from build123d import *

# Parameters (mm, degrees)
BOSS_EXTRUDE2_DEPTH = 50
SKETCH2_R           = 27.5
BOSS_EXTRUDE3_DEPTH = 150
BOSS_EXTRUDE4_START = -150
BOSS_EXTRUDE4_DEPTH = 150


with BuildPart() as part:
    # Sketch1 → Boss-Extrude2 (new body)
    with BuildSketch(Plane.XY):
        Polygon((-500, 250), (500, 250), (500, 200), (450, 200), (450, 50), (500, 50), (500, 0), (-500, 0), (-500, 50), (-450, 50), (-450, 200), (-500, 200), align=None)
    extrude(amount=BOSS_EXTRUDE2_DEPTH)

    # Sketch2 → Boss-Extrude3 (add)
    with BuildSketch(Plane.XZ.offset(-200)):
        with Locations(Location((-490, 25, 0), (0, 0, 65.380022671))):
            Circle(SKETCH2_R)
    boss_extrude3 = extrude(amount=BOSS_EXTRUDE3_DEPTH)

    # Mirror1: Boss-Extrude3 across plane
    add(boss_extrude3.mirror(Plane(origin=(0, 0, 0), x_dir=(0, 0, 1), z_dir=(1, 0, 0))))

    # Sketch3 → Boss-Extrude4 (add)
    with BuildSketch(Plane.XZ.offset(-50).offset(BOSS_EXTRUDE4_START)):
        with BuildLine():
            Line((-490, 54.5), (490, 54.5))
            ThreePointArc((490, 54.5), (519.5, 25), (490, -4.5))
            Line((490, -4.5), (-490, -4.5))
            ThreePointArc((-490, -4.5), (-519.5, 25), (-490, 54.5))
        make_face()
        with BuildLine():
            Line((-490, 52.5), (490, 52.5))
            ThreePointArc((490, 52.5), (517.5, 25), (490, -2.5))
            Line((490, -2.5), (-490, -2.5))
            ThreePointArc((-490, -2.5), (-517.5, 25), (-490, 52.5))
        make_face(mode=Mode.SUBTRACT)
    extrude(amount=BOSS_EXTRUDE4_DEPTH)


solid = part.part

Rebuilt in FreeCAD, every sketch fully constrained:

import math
import FreeCAD as App
import Part
import Sketcher
from FreeCAD import Vector
Q = App.Units.Quantity

doc = App.newDocument("Part")
body = doc.addObject("PartDesign::Body", "Body")

# Sketch on XY plane
sketch1 = doc.addObject("Sketcher::SketchObject", "Sketch")
body.addObject(sketch1)
sketch1.AttachmentSupport = (doc.XY_Plane, [""])
sketch1.MapMode = "FlatFace"
sketch1.addGeometry([
    Part.LineSegment(Vector(500, 250, 0), Vector(-500, 250, 0)),  # 0
    Part.LineSegment(Vector(-500, 250, 0), Vector(-500, 200, 0)),  # 1
    Part.LineSegment(Vector(-500, 200, 0), Vector(-450, 200, 0)),  # 2
    Part.LineSegment(Vector(-450, 200, 0), Vector(-450, 50, 0)),  # 3
    Part.LineSegment(Vector(-450, 50, 0), Vector(-500, 50, 0)),  # 4
    Part.LineSegment(Vector(-500, 50, 0), Vector(-500, 0, 0)),  # 5
    Part.LineSegment(Vector(-500, 0, 0), Vector(500, 0, 0)),  # 6
    Part.LineSegment(Vector(500, 0, 0), Vector(500, 50, 0)),  # 7
    Part.LineSegment(Vector(500, 50, 0), Vector(450, 50, 0)),  # 8
    Part.LineSegment(Vector(450, 50, 0), Vector(450, 200, 0)),  # 9
    Part.LineSegment(Vector(450, 200, 0), Vector(500, 200, 0)),  # 10
    Part.LineSegment(Vector(500, 200, 0), Vector(500, 250, 0)),  # 11
], False)
sketch1.addConstraint([
    Sketcher.Constraint("Coincident", 0, 2, 1, 1),
    Sketcher.Constraint("Coincident", 1, 2, 2, 1),
    Sketcher.Constraint("Coincident", 2, 2, 3, 1),
    Sketcher.Constraint("Coincident", 3, 2, 4, 1),
    Sketcher.Constraint("Coincident", 4, 2, 5, 1),
    Sketcher.Constraint("Coincident", 5, 2, 6, 1),
    Sketcher.Constraint("Coincident", 6, 2, 7, 1),
    Sketcher.Constraint("Coincident", 7, 2, 8, 1),
    Sketcher.Constraint("Coincident", 8, 2, 9, 1),
    Sketcher.Constraint("Coincident", 9, 2, 10, 1),
    Sketcher.Constraint("Coincident", 10, 2, 11, 1),
    Sketcher.Constraint("Coincident", 11, 2, 0, 1),
    Sketcher.Constraint("Horizontal", 0),
    Sketcher.Constraint("Vertical", 1),
    Sketcher.Constraint("Horizontal", 2),
    Sketcher.Constraint("Vertical", 3),
    Sketcher.Constraint("Horizontal", 4),
    Sketcher.Constraint("Vertical", 5),
    Sketcher.Constraint("Horizontal", 6),
    Sketcher.Constraint("Vertical", 7),
    Sketcher.Constraint("Horizontal", 8),
    Sketcher.Constraint("Vertical", 9),
    Sketcher.Constraint("Horizontal", 10),
    Sketcher.Constraint("Vertical", 11),
    Sketcher.Constraint("Symmetric", 5, 2, 6, 2, -1, 1),
    Sketcher.Constraint("Symmetric", 3, 2, 8, 2, -2),
    Sketcher.Constraint("Symmetric", 1, 2, 10, 2, -2),
    Sketcher.Constraint("Vertical", 1, 2, 4, 2),
    Sketcher.Constraint("Equal", 10, 1),
    Sketcher.Constraint("Equal", 1, 5),
    Sketcher.Constraint("DistanceX", 0, 2, 0, 1, Q("1000 mm")),
    Sketcher.Constraint("DistanceX", 2, 1, 2, 2, Q("50 mm")),
    Sketcher.Constraint("DistanceY", 3, 2, 3, 1, Q("150 mm")),
])
pad1 = doc.addObject("PartDesign::Pad", "Pad")
body.addObject(pad1)
pad1.Profile = sketch1
pad1.Length = 50

# Sketch on XZ plane
sketch2 = doc.addObject("Sketcher::SketchObject", "Sketch001")
body.addObject(sketch2)
sketch2.AttachmentSupport = (doc.XZ_Plane, [""])
sketch2.MapMode = "FlatFace"
sketch2.AttachmentOffset = App.Placement(Vector(0, 0, -200), App.Rotation())
sketch2.addGeometry(Part.Circle(Vector(-490, 25, 0), Vector(0, 0, 1), 28), False)
sketch2.addConstraint([
    Sketcher.Constraint("Diameter", 0, Q("55 mm")),
    Sketcher.Constraint("DistanceX", 0, 3, -1, 1, Q("490 mm")),
    Sketcher.Constraint("DistanceY", -1, 1, 0, 3, Q("25 mm")),
])
pad2 = doc.addObject("PartDesign::Pad", "Pad001")
body.addObject(pad2)
pad2.Profile = sketch2
pad2.Length = 150
doc.recompute()

mirrored = doc.addObject("PartDesign::Mirrored", "Mirrored")
body.addObject(mirrored)
mirrored.Originals = [pad2]
mirrored.MirrorPlane = (doc.YZ_Plane, [""])
body.Tip = mirrored

# Sketch on XZ plane
sketch3 = doc.addObject("Sketcher::SketchObject", "Sketch002")
body.addObject(sketch3)
sketch3.AttachmentSupport = (doc.XZ_Plane, [""])
sketch3.MapMode = "FlatFace"
sketch3.AttachmentOffset = App.Placement(Vector(0, 0, -200), App.Rotation())
sketch3.addGeometry([
    Part.LineSegment(Vector(490, 54, 0), Vector(-490, 54, 0)),  # 0
    Part.ArcOfCircle(Part.Circle(Vector(-490, 25, 0), Vector(0, 0, 1), 30), math.radians(90), math.radians(270)),  # 1
    Part.LineSegment(Vector(-490, -4, 0), Vector(490, -4, 0)),  # 2
    Part.ArcOfCircle(Part.Circle(Vector(490, 25, 0), Vector(0, 0, 1), 30), math.radians(-90), math.radians(90)),  # 3
    Part.LineSegment(Vector(-490, 52, 0), Vector(490, 52, 0)),  # 4
    Part.ArcOfCircle(Part.Circle(Vector(490, 25, 0), Vector(0, 0, 1), 28), math.radians(-90), math.radians(90)),  # 5
    Part.LineSegment(Vector(490, -2, 0), Vector(-490, -2, 0)),  # 6
    Part.ArcOfCircle(Part.Circle(Vector(-490, 25, 0), Vector(0, 0, 1), 28), math.radians(90), math.radians(270)),  # 7
], False)
sketch3.addConstraint([
    Sketcher.Constraint("Tangent", 0, 2, 1, 1),
    Sketcher.Constraint("Tangent", 1, 2, 2, 1),
    Sketcher.Constraint("Tangent", 2, 2, 3, 1),
    Sketcher.Constraint("Tangent", 3, 2, 0, 1),
    Sketcher.Constraint("Tangent", 4, 2, 5, 2),
    Sketcher.Constraint("Tangent", 5, 1, 6, 1),
    Sketcher.Constraint("Tangent", 6, 2, 7, 2),
    Sketcher.Constraint("Tangent", 7, 1, 4, 1),
    Sketcher.Constraint("Horizontal", 0),
    Sketcher.Constraint("Horizontal", 2),
    Sketcher.Constraint("Horizontal", 4),
    Sketcher.Constraint("Horizontal", 6),
    Sketcher.Constraint("Coincident", 5, 3, 3, 3),
    Sketcher.Constraint("Vertical", 7, 3, 0, 2),
    Sketcher.Constraint("Radius", 1, Q("29.5 mm")),
    Sketcher.Constraint("Radius", 5, Q("27.5 mm")),
    Sketcher.Constraint("DistanceX", 0, 2, 0, 1, Q("980 mm")),
    Sketcher.Constraint("DistanceX", 1, 3, -1, 1, Q("490 mm")),
    Sketcher.Constraint("DistanceY", -1, 1, 1, 3, Q("25 mm")),
])
pad3 = doc.addObject("PartDesign::Pad", "Pad002")
body.addObject(pad3)
pad3.Profile = sketch3
pad3.Length = 150

doc.recompute()
